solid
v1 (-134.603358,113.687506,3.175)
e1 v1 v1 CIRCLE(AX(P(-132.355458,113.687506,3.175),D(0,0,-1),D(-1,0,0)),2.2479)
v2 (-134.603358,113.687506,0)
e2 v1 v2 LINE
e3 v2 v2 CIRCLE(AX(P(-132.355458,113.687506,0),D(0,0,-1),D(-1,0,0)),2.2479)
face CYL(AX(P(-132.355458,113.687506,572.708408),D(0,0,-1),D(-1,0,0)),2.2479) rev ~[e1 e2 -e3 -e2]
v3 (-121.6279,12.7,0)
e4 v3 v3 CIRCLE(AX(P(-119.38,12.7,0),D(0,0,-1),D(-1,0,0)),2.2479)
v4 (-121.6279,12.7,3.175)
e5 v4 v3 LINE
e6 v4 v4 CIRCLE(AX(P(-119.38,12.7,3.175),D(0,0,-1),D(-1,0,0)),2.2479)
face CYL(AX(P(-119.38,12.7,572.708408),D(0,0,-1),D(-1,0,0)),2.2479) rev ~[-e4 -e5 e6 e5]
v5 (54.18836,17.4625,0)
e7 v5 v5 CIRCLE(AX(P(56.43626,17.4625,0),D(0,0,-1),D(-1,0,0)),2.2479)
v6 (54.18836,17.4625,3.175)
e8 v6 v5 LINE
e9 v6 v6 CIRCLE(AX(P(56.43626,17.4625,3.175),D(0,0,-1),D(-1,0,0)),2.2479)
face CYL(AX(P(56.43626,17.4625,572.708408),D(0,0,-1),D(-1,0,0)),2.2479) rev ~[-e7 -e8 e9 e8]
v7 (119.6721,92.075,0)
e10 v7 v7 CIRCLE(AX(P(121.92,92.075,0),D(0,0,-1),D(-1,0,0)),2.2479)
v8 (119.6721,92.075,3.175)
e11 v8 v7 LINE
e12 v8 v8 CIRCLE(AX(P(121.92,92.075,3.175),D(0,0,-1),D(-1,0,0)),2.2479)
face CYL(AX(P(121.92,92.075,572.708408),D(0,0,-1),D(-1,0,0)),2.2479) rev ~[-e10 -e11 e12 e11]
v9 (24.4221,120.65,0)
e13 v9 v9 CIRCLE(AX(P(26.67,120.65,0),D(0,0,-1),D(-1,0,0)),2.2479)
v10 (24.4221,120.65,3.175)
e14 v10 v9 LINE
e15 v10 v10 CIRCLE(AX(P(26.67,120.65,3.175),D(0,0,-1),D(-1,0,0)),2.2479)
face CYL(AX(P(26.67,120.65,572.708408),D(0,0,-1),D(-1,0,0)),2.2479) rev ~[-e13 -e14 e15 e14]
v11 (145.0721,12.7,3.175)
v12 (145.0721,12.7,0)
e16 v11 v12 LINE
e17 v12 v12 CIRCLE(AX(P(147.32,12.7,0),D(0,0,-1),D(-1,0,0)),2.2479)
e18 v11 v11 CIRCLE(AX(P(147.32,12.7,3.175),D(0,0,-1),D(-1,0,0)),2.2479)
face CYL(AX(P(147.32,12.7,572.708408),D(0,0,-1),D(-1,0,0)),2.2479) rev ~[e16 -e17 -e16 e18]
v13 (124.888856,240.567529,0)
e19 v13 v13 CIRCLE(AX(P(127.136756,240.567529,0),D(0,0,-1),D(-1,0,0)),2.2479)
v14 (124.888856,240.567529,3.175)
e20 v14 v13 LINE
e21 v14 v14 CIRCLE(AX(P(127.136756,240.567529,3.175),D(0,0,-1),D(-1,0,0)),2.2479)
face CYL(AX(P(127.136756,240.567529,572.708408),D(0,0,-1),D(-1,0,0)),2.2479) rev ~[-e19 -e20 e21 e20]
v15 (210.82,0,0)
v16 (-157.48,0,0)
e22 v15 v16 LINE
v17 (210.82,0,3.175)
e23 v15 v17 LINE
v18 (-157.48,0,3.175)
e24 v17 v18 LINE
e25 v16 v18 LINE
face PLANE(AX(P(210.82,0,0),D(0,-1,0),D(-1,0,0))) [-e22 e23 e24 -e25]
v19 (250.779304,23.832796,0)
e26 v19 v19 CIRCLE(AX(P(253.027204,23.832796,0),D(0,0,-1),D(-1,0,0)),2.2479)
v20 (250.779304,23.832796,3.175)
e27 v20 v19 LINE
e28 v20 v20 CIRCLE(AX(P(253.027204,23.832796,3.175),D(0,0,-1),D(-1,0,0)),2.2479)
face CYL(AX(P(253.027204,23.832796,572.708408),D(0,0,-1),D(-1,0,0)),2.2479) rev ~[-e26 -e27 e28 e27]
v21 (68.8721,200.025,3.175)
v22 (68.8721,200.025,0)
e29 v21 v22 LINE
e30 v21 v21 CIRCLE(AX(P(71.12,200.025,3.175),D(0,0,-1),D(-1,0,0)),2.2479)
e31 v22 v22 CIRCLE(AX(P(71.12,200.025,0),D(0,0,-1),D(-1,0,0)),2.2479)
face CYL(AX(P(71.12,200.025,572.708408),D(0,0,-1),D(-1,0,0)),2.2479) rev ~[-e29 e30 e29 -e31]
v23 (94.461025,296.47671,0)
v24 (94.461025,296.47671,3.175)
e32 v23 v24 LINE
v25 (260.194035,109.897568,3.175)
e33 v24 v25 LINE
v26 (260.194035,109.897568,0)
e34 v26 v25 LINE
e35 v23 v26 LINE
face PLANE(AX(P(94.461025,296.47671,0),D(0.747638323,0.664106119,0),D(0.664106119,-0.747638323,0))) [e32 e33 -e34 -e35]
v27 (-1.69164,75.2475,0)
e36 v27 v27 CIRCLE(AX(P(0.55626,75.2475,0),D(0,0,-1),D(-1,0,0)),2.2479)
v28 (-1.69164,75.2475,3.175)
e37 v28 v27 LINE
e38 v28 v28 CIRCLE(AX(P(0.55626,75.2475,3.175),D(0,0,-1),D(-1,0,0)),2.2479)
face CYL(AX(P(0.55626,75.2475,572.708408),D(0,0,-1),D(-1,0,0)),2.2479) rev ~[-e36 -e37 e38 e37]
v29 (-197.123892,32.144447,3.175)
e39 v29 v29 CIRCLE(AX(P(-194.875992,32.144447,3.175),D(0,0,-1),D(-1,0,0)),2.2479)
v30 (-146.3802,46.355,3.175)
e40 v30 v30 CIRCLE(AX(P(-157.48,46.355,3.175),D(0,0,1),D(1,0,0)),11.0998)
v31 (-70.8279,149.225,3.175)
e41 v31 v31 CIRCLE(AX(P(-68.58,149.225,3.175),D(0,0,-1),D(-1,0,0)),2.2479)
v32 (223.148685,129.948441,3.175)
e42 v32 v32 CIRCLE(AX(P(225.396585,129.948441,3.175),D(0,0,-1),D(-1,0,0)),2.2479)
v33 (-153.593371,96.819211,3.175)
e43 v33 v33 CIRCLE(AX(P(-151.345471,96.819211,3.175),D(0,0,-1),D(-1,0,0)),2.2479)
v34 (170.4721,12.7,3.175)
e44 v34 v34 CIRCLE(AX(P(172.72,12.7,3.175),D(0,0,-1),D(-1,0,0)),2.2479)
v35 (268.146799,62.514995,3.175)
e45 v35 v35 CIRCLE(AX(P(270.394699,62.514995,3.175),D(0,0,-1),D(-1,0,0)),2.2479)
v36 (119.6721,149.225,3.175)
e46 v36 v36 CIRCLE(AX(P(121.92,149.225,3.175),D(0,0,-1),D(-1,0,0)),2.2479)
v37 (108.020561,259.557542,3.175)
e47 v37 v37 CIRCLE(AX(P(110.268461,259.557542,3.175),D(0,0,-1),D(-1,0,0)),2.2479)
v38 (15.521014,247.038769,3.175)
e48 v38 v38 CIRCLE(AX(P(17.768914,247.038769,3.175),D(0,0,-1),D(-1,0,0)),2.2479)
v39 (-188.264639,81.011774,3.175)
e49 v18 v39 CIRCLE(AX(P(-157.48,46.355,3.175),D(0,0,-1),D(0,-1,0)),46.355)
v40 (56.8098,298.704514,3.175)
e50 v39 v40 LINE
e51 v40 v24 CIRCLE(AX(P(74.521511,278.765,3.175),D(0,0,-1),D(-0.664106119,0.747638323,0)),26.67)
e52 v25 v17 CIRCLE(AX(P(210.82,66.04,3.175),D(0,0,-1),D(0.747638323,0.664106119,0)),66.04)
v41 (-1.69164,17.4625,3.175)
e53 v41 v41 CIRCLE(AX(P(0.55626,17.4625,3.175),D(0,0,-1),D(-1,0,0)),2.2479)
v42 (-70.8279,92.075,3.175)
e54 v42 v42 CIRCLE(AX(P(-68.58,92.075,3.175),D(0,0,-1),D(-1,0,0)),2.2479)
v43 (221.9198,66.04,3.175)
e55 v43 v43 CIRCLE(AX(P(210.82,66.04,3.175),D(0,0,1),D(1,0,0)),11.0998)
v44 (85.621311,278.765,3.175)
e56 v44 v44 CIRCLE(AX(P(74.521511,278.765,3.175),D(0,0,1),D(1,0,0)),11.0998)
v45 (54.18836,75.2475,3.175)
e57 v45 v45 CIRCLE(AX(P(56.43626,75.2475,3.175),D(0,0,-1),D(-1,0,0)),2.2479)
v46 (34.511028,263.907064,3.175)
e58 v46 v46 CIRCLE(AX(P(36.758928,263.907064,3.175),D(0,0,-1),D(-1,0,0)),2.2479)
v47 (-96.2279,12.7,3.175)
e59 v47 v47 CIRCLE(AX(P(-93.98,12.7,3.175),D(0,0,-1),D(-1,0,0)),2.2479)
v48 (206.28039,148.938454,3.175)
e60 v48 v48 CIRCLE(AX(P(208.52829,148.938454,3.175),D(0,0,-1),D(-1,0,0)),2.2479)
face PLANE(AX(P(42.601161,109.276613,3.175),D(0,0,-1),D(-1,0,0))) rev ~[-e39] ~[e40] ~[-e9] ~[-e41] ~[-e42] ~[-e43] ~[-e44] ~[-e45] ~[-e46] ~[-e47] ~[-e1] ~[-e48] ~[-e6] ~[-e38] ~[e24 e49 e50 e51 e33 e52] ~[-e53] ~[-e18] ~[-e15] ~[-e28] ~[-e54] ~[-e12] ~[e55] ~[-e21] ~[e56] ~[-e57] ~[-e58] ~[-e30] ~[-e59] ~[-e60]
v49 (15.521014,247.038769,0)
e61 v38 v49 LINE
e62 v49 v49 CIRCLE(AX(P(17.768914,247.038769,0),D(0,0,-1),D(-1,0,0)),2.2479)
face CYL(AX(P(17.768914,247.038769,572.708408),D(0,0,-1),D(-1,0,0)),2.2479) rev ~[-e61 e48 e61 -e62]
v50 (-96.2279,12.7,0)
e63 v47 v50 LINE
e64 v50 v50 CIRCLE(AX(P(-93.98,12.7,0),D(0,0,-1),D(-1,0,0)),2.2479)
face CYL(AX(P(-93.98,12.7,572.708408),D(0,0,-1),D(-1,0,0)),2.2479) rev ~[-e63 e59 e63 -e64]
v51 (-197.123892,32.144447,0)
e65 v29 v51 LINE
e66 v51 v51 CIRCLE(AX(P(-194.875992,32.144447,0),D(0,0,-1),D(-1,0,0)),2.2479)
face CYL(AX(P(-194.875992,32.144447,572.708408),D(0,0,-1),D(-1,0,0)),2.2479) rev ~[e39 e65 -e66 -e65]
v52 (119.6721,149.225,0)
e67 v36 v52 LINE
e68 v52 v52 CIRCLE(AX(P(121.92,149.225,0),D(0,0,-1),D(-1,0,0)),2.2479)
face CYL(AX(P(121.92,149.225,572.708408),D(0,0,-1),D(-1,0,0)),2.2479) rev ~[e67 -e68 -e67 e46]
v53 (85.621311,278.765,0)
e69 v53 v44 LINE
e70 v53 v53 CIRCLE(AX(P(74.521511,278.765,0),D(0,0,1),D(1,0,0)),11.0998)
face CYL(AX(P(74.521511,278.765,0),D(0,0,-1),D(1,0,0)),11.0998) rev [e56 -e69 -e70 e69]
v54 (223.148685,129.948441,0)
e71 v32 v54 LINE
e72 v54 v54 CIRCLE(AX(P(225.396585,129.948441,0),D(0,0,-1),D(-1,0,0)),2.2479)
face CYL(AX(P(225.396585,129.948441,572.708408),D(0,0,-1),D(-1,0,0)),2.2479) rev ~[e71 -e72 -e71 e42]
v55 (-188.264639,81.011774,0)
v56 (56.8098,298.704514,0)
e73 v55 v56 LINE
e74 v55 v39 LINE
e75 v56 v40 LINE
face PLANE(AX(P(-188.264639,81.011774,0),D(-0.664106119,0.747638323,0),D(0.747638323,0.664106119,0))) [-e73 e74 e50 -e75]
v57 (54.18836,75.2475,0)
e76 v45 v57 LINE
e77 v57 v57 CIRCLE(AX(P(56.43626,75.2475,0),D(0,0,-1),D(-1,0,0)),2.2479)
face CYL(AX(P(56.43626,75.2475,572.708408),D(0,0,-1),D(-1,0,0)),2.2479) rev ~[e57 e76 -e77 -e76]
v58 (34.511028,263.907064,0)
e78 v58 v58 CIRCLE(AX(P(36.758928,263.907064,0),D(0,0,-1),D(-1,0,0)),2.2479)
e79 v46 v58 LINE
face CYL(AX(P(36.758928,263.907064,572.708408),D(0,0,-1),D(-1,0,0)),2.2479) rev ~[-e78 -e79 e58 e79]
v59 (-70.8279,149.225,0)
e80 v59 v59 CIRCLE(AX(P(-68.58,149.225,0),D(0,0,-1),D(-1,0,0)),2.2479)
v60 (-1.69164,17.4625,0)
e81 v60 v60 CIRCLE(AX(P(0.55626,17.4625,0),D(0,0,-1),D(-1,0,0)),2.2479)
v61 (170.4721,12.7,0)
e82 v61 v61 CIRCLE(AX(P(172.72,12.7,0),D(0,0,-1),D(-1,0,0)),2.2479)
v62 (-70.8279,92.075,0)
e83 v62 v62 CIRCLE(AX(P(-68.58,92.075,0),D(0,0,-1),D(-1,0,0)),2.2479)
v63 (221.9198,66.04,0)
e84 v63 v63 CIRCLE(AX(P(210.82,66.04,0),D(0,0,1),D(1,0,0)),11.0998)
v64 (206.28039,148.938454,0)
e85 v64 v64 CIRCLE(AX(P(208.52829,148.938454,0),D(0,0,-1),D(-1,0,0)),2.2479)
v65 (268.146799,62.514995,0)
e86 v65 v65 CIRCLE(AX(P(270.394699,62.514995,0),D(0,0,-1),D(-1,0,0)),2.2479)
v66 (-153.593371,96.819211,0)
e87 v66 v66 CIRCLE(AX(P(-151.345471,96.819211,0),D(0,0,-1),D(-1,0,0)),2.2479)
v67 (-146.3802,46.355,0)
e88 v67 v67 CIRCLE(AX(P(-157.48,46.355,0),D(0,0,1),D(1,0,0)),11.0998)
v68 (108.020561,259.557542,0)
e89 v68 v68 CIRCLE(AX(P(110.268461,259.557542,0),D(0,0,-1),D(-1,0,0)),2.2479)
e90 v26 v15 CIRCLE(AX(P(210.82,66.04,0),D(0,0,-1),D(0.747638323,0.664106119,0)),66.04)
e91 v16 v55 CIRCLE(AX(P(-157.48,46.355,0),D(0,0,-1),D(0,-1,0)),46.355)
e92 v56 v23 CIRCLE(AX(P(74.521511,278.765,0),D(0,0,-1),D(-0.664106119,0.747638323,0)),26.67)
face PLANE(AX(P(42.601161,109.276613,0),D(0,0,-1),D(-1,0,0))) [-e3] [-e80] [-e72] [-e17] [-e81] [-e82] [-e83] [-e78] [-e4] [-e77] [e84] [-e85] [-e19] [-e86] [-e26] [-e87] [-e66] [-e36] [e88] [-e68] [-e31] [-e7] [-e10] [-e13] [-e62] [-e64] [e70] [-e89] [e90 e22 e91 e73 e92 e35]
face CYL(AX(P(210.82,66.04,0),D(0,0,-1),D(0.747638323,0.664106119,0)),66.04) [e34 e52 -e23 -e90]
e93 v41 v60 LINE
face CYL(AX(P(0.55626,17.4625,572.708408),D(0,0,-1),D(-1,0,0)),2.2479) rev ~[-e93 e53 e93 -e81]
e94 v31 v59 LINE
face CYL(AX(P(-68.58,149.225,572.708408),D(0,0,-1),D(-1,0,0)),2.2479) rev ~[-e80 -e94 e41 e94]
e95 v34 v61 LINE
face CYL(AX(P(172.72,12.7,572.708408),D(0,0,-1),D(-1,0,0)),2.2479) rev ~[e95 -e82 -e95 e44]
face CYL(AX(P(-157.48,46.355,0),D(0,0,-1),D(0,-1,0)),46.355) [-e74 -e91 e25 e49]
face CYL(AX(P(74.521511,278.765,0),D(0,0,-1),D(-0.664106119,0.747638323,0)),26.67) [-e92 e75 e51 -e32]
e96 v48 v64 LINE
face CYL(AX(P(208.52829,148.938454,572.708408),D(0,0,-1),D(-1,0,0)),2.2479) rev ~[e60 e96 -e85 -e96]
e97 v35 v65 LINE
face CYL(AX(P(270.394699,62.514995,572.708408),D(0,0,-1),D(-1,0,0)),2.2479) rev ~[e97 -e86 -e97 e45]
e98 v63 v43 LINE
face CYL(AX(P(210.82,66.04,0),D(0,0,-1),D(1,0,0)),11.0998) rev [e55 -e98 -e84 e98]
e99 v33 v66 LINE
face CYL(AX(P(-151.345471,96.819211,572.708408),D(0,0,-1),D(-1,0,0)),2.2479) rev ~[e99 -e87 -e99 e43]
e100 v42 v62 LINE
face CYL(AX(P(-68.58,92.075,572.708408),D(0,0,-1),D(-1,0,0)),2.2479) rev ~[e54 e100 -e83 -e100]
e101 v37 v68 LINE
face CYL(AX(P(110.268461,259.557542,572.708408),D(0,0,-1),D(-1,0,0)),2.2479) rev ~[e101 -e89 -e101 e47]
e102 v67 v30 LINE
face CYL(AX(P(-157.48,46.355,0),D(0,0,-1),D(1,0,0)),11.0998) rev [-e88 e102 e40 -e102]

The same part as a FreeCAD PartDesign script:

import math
import FreeCAD as App
import Part
import Sketcher

V = App.Vector
Q = App.Units.Quantity

doc = App.newDocument("Part")
body = doc.addObject("PartDesign::Body", "Body")

# Sketch on XY plane
sketch1 = body.newObject("Sketcher::SketchObject", "Sketch")
sketch1.AttachmentSupport = (doc.getObject("XY_Plane"), [""])
sketch1.MapMode = "FlatFace"
sketch1.addGeometry(Part.LineSegment(V(57, 299, 0), V(-188, 81, 0)), False)
sketch1.addGeometry(Part.ArcOfCircle(Part.Circle(V(-157, 46, 0), V(0, 0, 1), 46), math.radians(132), math.radians(270)), False)
sketch1.addGeometry(Part.LineSegment(V(-157, 0, 0), V(211, 0, 0)), False)
sketch1.addGeometry(Part.ArcOfCircle(Part.Circle(V(211, 66, 0), V(0, 0, 1), 66), math.radians(-90), math.radians(42)), False)
sketch1.addGeometry(Part.LineSegment(V(260, 110, 0), V(94, 296, 0)), False)
sketch1.addGeometry(Part.ArcOfCircle(Part.Circle(V(75, 279, 0), V(0, 0, 1), 27), math.radians(42), math.radians(132)), False)
sketch1.addGeometry(Part.Circle(V(211, 66, 0), V(0, 0, 1), 11), False)
sketch1.addGeometry(Part.Circle(V(-157, 46, 0), V(0, 0, 1), 11), False)
sketch1.addGeometry(Part.Circle(V(75, 279, 0), V(0, 0, 1), 11), False)
sketch1.addConstraint(Sketcher.Constraint("Tangent", 0, 2, 1, 1))
sketch1.addConstraint(Sketcher.Constraint("Tangent", 1, 2, 2, 1))
sketch1.addConstraint(Sketcher.Constraint("Tangent", 2, 2, 3, 1))
sketch1.addConstraint(Sketcher.Constraint("Tangent", 3, 2, 4, 1))
sketch1.addConstraint(Sketcher.Constraint("Tangent", 4, 2, 5, 1))
sketch1.addConstraint(Sketcher.Constraint("Tangent", 5, 2, 0, 1))
sketch1.addConstraint(Sketcher.Constraint("Horizontal", 2))
sketch1.addConstraint(Sketcher.Constraint("Coincident", 6, 3, 3, 3))
sketch1.addConstraint(Sketcher.Constraint("Coincident", 7, 3, 1, 3))
sketch1.addConstraint(Sketcher.Constraint("Coincident", 8, 3, 5, 3))
sketch1.addConstraint(Sketcher.Constraint("Equal", 6, 7))
sketch1.addConstraint(Sketcher.Constraint("Equal", 7, 8))
sketch1.addConstraint(Sketcher.Constraint("PointOnObject", 1, 2, -1))
sketch1.addConstraint(Sketcher.Constraint("Perpendicular", 0, 4))
sketch1.addConstraint(Sketcher.Constraint("Radius", 3, Q("2.6 in")))
sketch1.addConstraint(Sketcher.Constraint("Radius", 5, Q("1.05 in")))
sketch1.addConstraint(Sketcher.Constraint("Diameter", 6, Q("0.874 in")))
sketch1.addConstraint(Sketcher.Constraint("DistanceX", 2, 1, 2, 2, Q("14.5 in")))
sketch1.addConstraint(Sketcher.Constraint("Radius", 1, Q("1.825 in")))
sketch1.addConstraint(Sketcher.Constraint("DistanceX", 1, 3, -1, 1, Q("6.2 in")))
sketch1.addConstraint(Sketcher.Constraint("DistanceY", 1, 3, 5, 3, Q("9.15 in")))
pad1 = body.newObject("PartDesign::Pad", "Pad")
pad1.Profile = sketch1
pad1.Length = Q("0.125 in")

# Sketch on XY plane
sketch2 = body.newObject("Sketcher::SketchObject", "Sketch001")
sketch2.AttachmentSupport = (doc.getObject("XY_Plane"), [""])
sketch2.MapMode = "FlatFace"
sketch2.AttachmentOffset = App.Placement(V(0, 0, 0.125 * 25.4), App.Rotation())
sketch2.addGeometry(Part.Circle(V(17.8, 247, 0), V(0, 0, 1), 2.2), False)
sketch2.addGeometry(Part.Circle(V(36.8, 263.9, 0), V(0, 0, 1), 2.2), False)
sketch2.addGeometry(Part.Circle(V(110.3, 259.6, 0), V(0, 0, 1), 2.2), False)
sketch2.addGeometry(Part.Circle(V(127.1, 240.6, 0), V(0, 0, 1), 2.2), False)
sketch2.addGeometry(Part.Circle(V(208.5, 148.9, 0), V(0, 0, 1), 2.2), False)
sketch2.addGeometry(Part.Circle(V(225.4, 129.9, 0), V(0, 0, 1), 2.2), False)
sketch2.addGeometry(Part.Circle(V(270.4, 62.5, 0), V(0, 0, 1), 2.2), False)
sketch2.addGeometry(Part.Circle(V(253, 23.8, 0), V(0, 0, 1), 2.2), False)
sketch2.addGeometry(Part.Circle(V(172.7, 12.7, 0), V(0, 0, 1), 2.2), False)
sketch2.addGeometry(Part.Circle(V(147.3, 12.7, 0), V(0, 0, 1), 2.2), False)
sketch2.addGeometry(Part.Circle(V(-94, 12.7, 0), V(0, 0, 1), 2.2), False)
sketch2.addGeometry(Part.Circle(V(-119.4, 12.7, 0), V(0, 0, 1), 2.2), False)
sketch2.addGeometry(Part.Circle(V(-194.9, 32.1, 0), V(0, 0, 1), 2.2), False)
sketch2.addGeometry(Part.Circle(V(-151.3, 96.8, 0), V(0, 0, 1), 2.2), False)
sketch2.addGeometry(Part.Circle(V(-132.4, 113.7, 0), V(0, 0, 1), 2.2), False)
sketch2.addGeometry(Part.Circle(V(-68.6, 149.2, 0), V(0, 0, 1), 2.2), False)
sketch2.addGeometry(Part.Circle(V(-68.6, 92.1, 0), V(0, 0, 1), 2.2), False)
sketch2.addGeometry(Part.Circle(V(121.9, 92.1, 0), V(0, 0, 1), 2.2), False)
sketch2.addGeometry(Part.Circle(V(121.9, 149.2, 0), V(0, 0, 1), 2.2), False)
sketch2.addGeometry(Part.Circle(V(71.1, 200, 0), V(0, 0, 1), 2.2), False)
sketch2.addGeometry(Part.Circle(V(26.7, 120.7, 0), V(0, 0, 1), 2.2), False)
sketch2.addGeometry(Part.Circle(V(0.6, 75.2, 0), V(0, 0, 1), 2.2), False)
sketch2.addGeometry(Part.Circle(V(56.4, 75.2, 0), V(0, 0, 1), 2.2), False)
sketch2.addGeometry(Part.Circle(V(56.4, 17.5, 0), V(0, 0, 1), 2.2), False)
sketch2.addGeometry(Part.Circle(V(0.6, 17.5, 0), V(0, 0, 1), 2.2), False)
sketch2.addConstraint(Sketcher.Constraint("Equal", 0, 1))
sketch2.addConstraint(Sketcher.Constraint("Equal", 1, 2))
sketch2.addConstraint(Sketcher.Constraint("Equal", 2, 3))
sketch2.addConstraint(Sketcher.Constraint("Equal", 3, 4))
sketch2.addConstraint(Sketcher.Constraint("Equal", 4, 5))
sketch2.addConstraint(Sketcher.Constraint("Equal", 5, 6))
sketch2.addConstraint(Sketcher.Constraint("Equal", 6, 7))
sketch2.addConstraint(Sketcher.Constraint("Equal", 7, 8))
sketch2.addConstraint(Sketcher.Constraint("Equal", 8, 9))
sketch2.addConstraint(Sketcher.Constraint("Equal", 9, 10))
sketch2.addConstraint(Sketcher.Constraint("Equal", 10, 11))
sketch2.addConstraint(Sketcher.Constraint("Equal", 11, 12))
sketch2.addConstraint(Sketcher.Constraint("Equal", 12, 13))
sketch2.addConstraint(Sketcher.Constraint("Equal", 13, 14))
sketch2.addConstraint(Sketcher.Constraint("Equal", 14, 15))
sketch2.addConstraint(Sketcher.Constraint("Equal", 15, 16))
sketch2.addConstraint(Sketcher.Constraint("Equal", 16, 17))
sketch2.addConstraint(Sketcher.Constraint("Equal", 17, 18))
sketch2.addConstraint(Sketcher.Constraint("Equal", 18, 19))
sketch2.addConstraint(Sketcher.Constraint("Equal", 19, 20))
sketch2.addConstraint(Sketcher.Constraint("Equal", 20, 21))
sketch2.addConstraint(Sketcher.Constraint("Equal", 21, 22))
sketch2.addConstraint(Sketcher.Constraint("Equal", 22, 23))
sketch2.addConstraint(Sketcher.Constraint("Equal", 23, 24))
sketch2.addConstraint(Sketcher.Constraint("Horizontal", 8, 3, 9, 3))
sketch2.addConstraint(Sketcher.Constraint("Horizontal", 9, 3, 10, 3))
sketch2.addConstraint(Sketcher.Constraint("Horizontal", 10, 3, 11, 3))
sketch2.addConstraint(Sketcher.Constraint("Horizontal", 16, 3, 17, 3))
sketch2.addConstraint(Sketcher.Constraint("Horizontal", 15, 3, 18, 3))
sketch2.addConstraint(Sketcher.Constraint("Horizontal", 21, 3, 22, 3))
sketch2.addConstraint(Sketcher.Constraint("Horizontal", 23, 3, 24, 3))
sketch2.addConstraint(Sketcher.Constraint("Vertical", 15, 3, 16, 3))
sketch2.addConstraint(Sketcher.Constraint("Vertical", 17, 3, 18, 3))
sketch2.addConstraint(Sketcher.Constraint("Vertical", 22, 3, 23, 3))
sketch2.addConstraint(Sketcher.Constraint("Vertical", 21, 3, 24, 3))
sketch2.addConstraint(Sketcher.Constraint("Diameter", 0, Q("0.177 in")))
sketch2.addConstraint(Sketcher.Constraint("DistanceX", 9, 3, 8, 3, Q("1 in")))
sketch2.addConstraint(Sketcher.Constraint("DistanceX", 11, 3, 10, 3, Q("1 in")))
sketch2.addConstraint(Sketcher.Constraint("DistanceX", 10, 3, 15, 3, Q("1 in")))
sketch2.addConstraint(Sketcher.Constraint("DistanceX", 17, 3, 9, 3, Q("1 in")))
sketch2.addConstraint(Sketcher.Constraint("DistanceX", 19, 3, 18, 3, Q("2 in")))
sketch2.addConstraint(Sketcher.Constraint("DistanceY", 18, 3, 19, 3, Q("2 in")))
sketch2.addConstraint(Sketcher.Constraint("DistanceX", -1, 1, 8, 3, Q("6.8 in")))
sketch2.addConstraint(Sketcher.Constraint("DistanceY", -1, 1, 8, 3, Q("0.5 in")))
sketch2.addConstraint(Sketcher.Constraint("DistanceX", 10, 3, -1, 1, Q("3.7 in")))
sketch2.addConstraint(Sketcher.Constraint("DistanceX", 21, 3, 22, 3, Q("2.2 in")))
sketch2.addConstraint(Sketcher.Constraint("DistanceX", -1, 1, 20, 3, Q("1.05 in")))
sketch2.addConstraint(Sketcher.Constraint("DistanceY", -1, 1, 20, 3, Q("4.75 in")))
sketch2.addConstraint(Sketcher.Constraint("DistanceY", 16, 3, 15, 3, Q("2.25 in")))
sketch2.addConstraint(Sketcher.Constraint("DistanceY", -1, 1, 15, 3, Q("5.875 in")))
sketch2.addConstraint(Sketcher.Constraint("DistanceY", -1, 1, 23, 3, Q("0.6875 in")))
sketch2.addConstraint(Sketcher.Constraint("DistanceY", 23, 3, 22, 3, Q("2.275 in")))
sketch2.addConstraint(Sketcher.Constraint("DistanceX", -1, 1, 21, 3, Q("0.0219 in")))
sketch2.addConstraint(Sketcher.Constraint("DistanceX", 12, 3, 13, 3, Q("1.7138 in")))
sketch2.addConstraint(Sketcher.Constraint("DistanceX", -1, 1, 6, 3, Q("270.394699 mm")))
sketch2.addConstraint(Sketcher.Constraint("DistanceY", 5, 3, 2, 3, Q("129.609102 mm")))
sketch2.addConstraint(Sketcher.Constraint("DistanceY", 7, 3, 6, 3, Q("38.682199 mm")))
sketch2.addConstraint(Sketcher.Constraint("DistanceX", 13, 3, 1, 3, Q("188.104399 mm")))
sketch2.addConstraint(Sketcher.Constraint("DistanceY", -1, 1, 0, 3, Q("247.038769 mm")))
sketch2.addConstraint(Sketcher.Constraint("DistanceX", -1, 1, 2, 3, Q("110.268461 mm")))
sketch2.addConstraint(Sketcher.Constraint("DistanceY", -1, 1, 3, 3, Q("240.567529 mm")))
sketch2.addConstraint(Sketcher.Constraint("DistanceX", -1, 1, 4, 3, Q("208.52829 mm")))
sketch2.addConstraint(Sketcher.Constraint("DistanceY", -1, 1, 5, 3, Q("129.948441 mm")))
sketch2.addConstraint(Sketcher.Constraint("DistanceX", 12, 3, -1, 1, Q("194.875992 mm")))
sketch2.addConstraint(Sketcher.Constraint("DistanceY", -1, 1, 13, 3, Q("96.819211 mm")))
sketch2.addConstraint(Sketcher.Constraint("DistanceY", 2, 3, 1, 3, Q("4.349522 mm")))
sketch2.addConstraint(Sketcher.Constraint("DistanceX", 1, 3, 3, 3, Q("90.377829 mm")))
sketch2.addConstraint(Sketcher.Constraint("DistanceX", 0, 3, 3, 3, Q("109.367842 mm")))
sketch2.addConstraint(Sketcher.Constraint("DistanceY", 4, 3, 2, 3, Q("110.619088 mm")))
sketch2.addConstraint(Sketcher.Constraint("DistanceX", 3, 3, 5, 3, Q("98.259829 mm")))
sketch2.addConstraint(Sketcher.Constraint("DistanceY", 6, 3, 4, 3, Q("86.423459 mm")))
sketch2.addConstraint(Sketcher.Constraint("DistanceX", 5, 3, 7, 3, Q("27.630619 mm")))
sketch2.addConstraint(Sketcher.Constraint("DistanceY", 12, 3, 0, 3, Q("214.894322 mm")))
sketch2.addConstraint(Sketcher.Constraint("DistanceY", 12, 3, 14, 3, Q("81.543059 mm")))
sketch2.addConstraint(Sketcher.Constraint("DistanceX", 14, 3, -1, 1, Q("132.355458 mm")))
doc.recompute()
hole = body.newObject("PartDesign::Hole", "Hole")
hole.Profile = sketch2
hole.ThreadType = "None"
hole.Diameter = Q("0.177 in")
hole.DepthType = "ThroughAll"

doc.recompute()
